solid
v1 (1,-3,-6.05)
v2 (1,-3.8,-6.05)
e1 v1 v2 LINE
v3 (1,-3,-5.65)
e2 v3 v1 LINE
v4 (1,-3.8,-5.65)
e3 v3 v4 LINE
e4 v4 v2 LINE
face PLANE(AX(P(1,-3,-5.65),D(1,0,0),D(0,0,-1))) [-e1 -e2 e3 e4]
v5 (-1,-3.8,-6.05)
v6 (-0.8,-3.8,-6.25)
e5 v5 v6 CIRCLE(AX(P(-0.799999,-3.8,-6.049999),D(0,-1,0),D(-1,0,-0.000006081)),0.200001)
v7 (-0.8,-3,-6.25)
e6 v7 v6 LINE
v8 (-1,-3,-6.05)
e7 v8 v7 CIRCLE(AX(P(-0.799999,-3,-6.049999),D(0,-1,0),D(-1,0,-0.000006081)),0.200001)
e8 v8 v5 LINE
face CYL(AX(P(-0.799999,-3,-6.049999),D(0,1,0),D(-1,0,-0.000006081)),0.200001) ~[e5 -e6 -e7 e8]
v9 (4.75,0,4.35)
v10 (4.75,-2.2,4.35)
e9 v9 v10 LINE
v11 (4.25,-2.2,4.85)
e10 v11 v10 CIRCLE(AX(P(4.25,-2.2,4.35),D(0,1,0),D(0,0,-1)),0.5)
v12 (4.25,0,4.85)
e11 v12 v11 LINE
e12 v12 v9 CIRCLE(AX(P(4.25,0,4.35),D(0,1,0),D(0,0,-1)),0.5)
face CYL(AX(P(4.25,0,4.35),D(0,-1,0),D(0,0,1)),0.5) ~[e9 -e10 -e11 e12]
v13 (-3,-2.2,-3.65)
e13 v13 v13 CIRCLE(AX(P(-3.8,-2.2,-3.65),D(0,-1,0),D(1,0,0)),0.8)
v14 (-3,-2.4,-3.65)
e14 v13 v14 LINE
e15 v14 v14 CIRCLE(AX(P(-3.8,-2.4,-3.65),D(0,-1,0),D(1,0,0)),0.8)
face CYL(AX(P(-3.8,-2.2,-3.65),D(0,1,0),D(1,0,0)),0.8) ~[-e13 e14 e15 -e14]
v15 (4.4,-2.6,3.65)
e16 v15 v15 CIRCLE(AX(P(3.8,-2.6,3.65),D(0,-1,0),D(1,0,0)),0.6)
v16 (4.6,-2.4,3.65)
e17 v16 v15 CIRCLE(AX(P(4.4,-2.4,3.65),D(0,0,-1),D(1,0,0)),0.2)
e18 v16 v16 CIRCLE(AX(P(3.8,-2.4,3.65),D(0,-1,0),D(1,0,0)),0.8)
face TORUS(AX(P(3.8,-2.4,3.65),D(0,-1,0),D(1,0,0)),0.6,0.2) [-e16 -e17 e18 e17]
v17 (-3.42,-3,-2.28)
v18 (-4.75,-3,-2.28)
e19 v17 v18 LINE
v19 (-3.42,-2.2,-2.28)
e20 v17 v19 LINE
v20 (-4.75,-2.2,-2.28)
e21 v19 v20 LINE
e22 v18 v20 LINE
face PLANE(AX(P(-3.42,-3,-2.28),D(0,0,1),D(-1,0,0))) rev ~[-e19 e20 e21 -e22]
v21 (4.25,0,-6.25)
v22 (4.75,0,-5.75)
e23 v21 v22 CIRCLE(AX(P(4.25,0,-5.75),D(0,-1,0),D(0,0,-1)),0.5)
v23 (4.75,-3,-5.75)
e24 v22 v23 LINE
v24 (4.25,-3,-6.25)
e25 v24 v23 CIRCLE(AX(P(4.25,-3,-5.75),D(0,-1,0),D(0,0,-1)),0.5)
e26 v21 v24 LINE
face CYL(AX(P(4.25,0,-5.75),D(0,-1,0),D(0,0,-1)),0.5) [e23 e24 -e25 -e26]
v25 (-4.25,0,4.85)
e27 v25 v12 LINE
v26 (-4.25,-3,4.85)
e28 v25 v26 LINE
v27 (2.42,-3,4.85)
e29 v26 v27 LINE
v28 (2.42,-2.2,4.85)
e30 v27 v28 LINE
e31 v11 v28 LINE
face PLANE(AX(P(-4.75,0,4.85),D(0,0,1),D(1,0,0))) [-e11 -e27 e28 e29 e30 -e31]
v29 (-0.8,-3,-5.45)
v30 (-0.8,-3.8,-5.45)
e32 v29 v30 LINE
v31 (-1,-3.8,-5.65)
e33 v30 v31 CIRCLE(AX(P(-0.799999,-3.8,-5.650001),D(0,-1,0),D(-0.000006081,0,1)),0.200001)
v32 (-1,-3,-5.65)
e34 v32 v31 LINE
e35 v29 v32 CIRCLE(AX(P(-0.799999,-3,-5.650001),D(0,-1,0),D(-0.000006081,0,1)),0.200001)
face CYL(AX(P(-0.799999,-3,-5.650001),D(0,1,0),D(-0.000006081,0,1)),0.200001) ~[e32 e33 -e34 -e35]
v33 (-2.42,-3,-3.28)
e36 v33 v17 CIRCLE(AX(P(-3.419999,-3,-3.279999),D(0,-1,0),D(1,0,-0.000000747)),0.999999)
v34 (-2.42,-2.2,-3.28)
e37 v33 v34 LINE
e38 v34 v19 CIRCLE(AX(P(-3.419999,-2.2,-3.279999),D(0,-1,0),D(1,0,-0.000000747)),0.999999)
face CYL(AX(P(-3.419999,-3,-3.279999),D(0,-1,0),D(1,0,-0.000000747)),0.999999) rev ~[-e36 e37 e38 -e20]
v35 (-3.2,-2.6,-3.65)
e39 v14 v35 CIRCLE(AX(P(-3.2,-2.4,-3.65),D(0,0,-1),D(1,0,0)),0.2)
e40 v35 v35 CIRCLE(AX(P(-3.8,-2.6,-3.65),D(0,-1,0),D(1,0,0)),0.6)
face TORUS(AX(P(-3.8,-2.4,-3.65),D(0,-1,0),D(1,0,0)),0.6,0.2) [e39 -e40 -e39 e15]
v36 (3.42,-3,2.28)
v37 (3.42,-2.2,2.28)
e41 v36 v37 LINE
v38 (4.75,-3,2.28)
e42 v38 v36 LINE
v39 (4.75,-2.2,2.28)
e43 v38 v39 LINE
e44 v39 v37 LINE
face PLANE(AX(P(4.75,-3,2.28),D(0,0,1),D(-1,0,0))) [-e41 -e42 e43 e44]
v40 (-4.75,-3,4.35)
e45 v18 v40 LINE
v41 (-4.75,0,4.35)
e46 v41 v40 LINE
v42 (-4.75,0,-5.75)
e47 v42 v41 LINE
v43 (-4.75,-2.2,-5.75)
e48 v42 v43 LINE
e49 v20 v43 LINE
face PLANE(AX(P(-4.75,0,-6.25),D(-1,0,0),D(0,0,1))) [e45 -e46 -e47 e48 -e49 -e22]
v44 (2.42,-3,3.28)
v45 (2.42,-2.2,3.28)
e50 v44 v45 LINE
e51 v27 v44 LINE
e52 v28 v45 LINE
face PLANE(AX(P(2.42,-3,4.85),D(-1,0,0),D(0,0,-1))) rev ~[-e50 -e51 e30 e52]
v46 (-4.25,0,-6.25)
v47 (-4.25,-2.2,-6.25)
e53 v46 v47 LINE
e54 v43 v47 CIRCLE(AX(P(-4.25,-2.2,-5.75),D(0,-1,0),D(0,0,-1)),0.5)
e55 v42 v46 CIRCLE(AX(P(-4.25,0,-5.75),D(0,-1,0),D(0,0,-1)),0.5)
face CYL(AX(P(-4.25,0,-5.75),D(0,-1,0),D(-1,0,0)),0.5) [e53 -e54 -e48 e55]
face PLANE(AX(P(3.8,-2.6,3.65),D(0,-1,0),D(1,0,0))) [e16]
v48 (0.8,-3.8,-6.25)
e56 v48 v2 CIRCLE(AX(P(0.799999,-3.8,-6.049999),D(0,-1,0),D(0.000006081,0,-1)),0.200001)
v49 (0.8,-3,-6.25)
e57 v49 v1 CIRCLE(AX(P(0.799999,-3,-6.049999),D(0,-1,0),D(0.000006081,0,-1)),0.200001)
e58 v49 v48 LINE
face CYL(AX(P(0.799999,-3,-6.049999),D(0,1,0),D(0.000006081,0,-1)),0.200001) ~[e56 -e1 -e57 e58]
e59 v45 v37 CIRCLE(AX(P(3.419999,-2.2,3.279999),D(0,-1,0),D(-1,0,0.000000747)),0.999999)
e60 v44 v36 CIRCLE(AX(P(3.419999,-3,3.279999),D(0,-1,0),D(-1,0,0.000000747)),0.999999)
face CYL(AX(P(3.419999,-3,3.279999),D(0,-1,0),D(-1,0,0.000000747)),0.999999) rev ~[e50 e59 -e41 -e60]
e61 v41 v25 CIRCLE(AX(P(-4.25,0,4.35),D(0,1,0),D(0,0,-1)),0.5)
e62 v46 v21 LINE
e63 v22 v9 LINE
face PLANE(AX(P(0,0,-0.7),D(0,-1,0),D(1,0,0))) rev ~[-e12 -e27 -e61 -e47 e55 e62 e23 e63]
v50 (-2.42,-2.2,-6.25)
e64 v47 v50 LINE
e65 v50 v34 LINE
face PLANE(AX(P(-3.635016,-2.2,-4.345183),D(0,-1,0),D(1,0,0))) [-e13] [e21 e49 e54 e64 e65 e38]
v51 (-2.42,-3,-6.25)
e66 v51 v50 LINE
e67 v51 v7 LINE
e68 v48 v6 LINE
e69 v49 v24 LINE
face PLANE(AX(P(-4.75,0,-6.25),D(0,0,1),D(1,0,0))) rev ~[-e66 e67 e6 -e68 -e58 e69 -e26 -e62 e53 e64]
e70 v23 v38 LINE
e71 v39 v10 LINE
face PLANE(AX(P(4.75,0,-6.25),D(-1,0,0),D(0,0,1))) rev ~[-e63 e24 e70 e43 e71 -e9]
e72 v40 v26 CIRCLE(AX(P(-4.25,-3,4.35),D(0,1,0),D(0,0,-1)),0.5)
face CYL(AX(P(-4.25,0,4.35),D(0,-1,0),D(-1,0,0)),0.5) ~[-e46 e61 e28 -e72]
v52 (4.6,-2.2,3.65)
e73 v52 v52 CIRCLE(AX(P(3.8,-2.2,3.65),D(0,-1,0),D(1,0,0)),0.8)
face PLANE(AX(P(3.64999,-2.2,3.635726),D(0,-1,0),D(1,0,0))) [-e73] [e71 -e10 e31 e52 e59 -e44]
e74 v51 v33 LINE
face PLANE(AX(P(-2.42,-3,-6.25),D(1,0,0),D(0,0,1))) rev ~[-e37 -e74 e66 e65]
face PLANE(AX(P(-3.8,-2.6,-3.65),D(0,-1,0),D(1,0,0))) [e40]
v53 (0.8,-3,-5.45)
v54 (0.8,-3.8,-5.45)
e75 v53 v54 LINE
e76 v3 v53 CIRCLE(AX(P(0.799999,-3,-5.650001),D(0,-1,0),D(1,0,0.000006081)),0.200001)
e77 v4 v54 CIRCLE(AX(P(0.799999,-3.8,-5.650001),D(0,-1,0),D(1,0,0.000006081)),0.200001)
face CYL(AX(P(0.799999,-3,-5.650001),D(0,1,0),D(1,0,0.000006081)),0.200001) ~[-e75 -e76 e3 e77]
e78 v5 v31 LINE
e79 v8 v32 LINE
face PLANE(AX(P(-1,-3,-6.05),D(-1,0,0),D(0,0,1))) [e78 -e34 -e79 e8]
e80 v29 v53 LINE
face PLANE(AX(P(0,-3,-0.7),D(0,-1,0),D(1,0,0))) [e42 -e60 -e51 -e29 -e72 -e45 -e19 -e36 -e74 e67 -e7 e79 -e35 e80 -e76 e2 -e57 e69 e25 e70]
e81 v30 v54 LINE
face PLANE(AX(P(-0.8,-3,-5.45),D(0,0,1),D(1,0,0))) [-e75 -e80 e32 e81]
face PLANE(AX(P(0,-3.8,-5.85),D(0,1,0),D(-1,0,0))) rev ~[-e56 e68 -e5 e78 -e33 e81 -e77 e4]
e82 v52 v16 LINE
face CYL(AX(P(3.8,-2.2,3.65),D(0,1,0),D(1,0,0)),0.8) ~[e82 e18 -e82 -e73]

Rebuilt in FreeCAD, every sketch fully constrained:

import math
import FreeCAD as App
import Part
import Sketcher
from FreeCAD import Vector


def edges_at(feature, points):
    """Names of the edges that pass closest to the given points."""
    edges = feature.Shape.Edges
    near = lambda p: min(range(len(edges)), key=lambda i: edges[i].distToShape(Part.Vertex(*p))[0])
    return sorted({f"Edge{near(p) + 1}" for p in points})


def add_polygon(sketch, points):
    """Adds a closed chain of lines whose ends are joined by coincident constraints."""
    first, n = sketch.GeometryCount, len(points)
    for a, b in zip(points, points[1:] + points[:1]):
        sketch.addGeometry(Part.LineSegment(App.Vector(*a, 0), App.Vector(*b, 0)), False)
    for i in range(n):
        sketch.addConstraint(Sketcher.Constraint("Coincident", first + i, 2, first + (i + 1) % n, 1))

doc = App.newDocument("Part")
body = doc.addObject("PartDesign::Body", "Body")

sketch1 = body.newObject("Sketcher::SketchObject", "Sketch")
sketch1.AttachmentSupport = (doc.getObject("XZ_Plane"), [""])
sketch1.MapMode = "FlatFace"
add_polygon(sketch1, [(-5, 5), (-5, -6), (5, -6), (5, 5)])
sketch1.addConstraint(Sketcher.Constraint("Vertical", 0))
sketch1.addConstraint(Sketcher.Constraint("Horizontal", 1))
sketch1.addConstraint(Sketcher.Constraint("Vertical", 2))
sketch1.addConstraint(Sketcher.Constraint("Horizontal", 3))
sketch1.addConstraint(Sketcher.Constraint("DistanceX", 1, 1, 1, 2, 9.5))
sketch1.addConstraint(Sketcher.Constraint("DistanceY", 0, 2, 0, 1, 11.1))
sketch1.addConstraint(Sketcher.Constraint("DistanceX", 0, 2, -1, 1, 4.75))
sketch1.addConstraint(Sketcher.Constraint("DistanceY", 0, 2, -1, 1, 6.25))
pad1 = body.newObject("PartDesign::Pad", "Pad")
pad1.Profile = sketch1
pad1.Length = 3

sketch2 = body.newObject("Sketcher::SketchObject", "Sketch001")
sketch2.AttachmentSupport = (doc.getObject("XZ_Plane"), [""])
sketch2.MapMode = "FlatFace"
sketch2.AttachmentOffset = App.Placement(Vector(0, 0, 3), App.Rotation())
sketch2.addGeometry(Part.LineSegment(Vector(-3.4, -2.3, 0), Vector(-4.8, -2.3, 0)), False)
sketch2.addGeometry(Part.LineSegment(Vector(-4.8, -2.3, 0), Vector(-4.8, -6.2, 0)), False)
sketch2.addGeometry(Part.LineSegment(Vector(-4.8, -6.2, 0), Vector(-2.4, -6.2, 0)), False)
sketch2.addGeometry(Part.LineSegment(Vector(-2.4, -6.2, 0), Vector(-2.4, -3.3, 0)), False)
sketch2.addGeometry(Part.ArcOfCircle(Part.Circle(Vector(-3.4, -3.3, 0), Vector(0, 0, 1), 1), math.radians(0), math.radians(90)), False)
sketch2.addGeometry(Part.LineSegment(Vector(4.8, 2.3, 0), Vector(4.8, 4.8, 0)), False)
sketch2.addGeometry(Part.LineSegment(Vector(4.8, 4.8, 0), Vector(2.4, 4.8, 0)), False)
sketch2.addGeometry(Part.LineSegment(Vector(2.4, 4.8, 0), Vector(2.4, 3.3, 0)), False)
sketch2.addGeometry(Part.ArcOfCircle(Part.Circle(Vector(3.4, 3.3, 0), Vector(0, 0, 1), 1), math.radians(180), math.radians(270)), False)
sketch2.addGeometry(Part.LineSegment(Vector(3.4, 2.3, 0), Vector(4.8, 2.3, 0)), False)
sketch2.addConstraint(Sketcher.Constraint("Coincident", 0, 2, 1, 1))
sketch2.addConstraint(Sketcher.Constraint("Coincident", 1, 2, 2, 1))
sketch2.addConstraint(Sketcher.Constraint("Coincident", 2, 2, 3, 1))
sketch2.addConstraint(Sketcher.Constraint("Tangent", 3, 2, 4, 1))
sketch2.addConstraint(Sketcher.Constraint("Tangent", 4, 2, 0, 1))
sketch2.addConstraint(Sketcher.Constraint("Coincident", 5, 2, 6, 1))
sketch2.addConstraint(Sketcher.Constraint("Coincident", 6, 2, 7, 1))
sketch2.addConstraint(Sketcher.Constraint("Tangent", 7, 2, 8, 1))
sketch2.addConstraint(Sketcher.Constraint("Tangent", 8, 2, 9, 1))
sketch2.addConstraint(Sketcher.Constraint("Coincident", 9, 2, 5, 1))
sketch2.addConstraint(Sketcher.Constraint("Horizontal", 0))
sketch2.addConstraint(Sketcher.Constraint("Vertical", 1))
sketch2.addConstraint(Sketcher.Constraint("Horizontal", 2))
sketch2.addConstraint(Sketcher.Constraint("Vertical", 3))
sketch2.addConstraint(Sketcher.Constraint("Vertical", 5))
sketch2.addConstraint(Sketcher.Constraint("Horizontal", 6))
sketch2.addConstraint(Sketcher.Constraint("Vertical", 7))
sketch2.addConstraint(Sketcher.Constraint("Horizontal", 9))
sketch2.addConstraint(Sketcher.Constraint("Equal", 4, 8))
sketch2.addConstraint(Sketcher.Constraint("Symmetric", 4, 3, 8, 3, -1, 1))
sketch2.addConstraint(Sketcher.Constraint("Equal", 2, 6))
sketch2.addConstraint(Sketcher.Constraint("Radius", 4, 0.999999))
sketch2.addConstraint(Sketcher.Constraint("DistanceX", 0, 2, 0, 1, 1.33))
sketch2.addConstraint(Sketcher.Constraint("DistanceY", 1, 2, 1, 1, 3.97))
sketch2.addConstraint(Sketcher.Constraint("DistanceY", 5, 1, 5, 2, 2.57))
sketch2.addConstraint(Sketcher.Constraint("DistanceX", 0, 2, 5, 2, 9.5))
sketch2.addConstraint(Sketcher.Constraint("DistanceY", 4, 3, -1, 1, 3.279999))
pocket1 = body.newObject("PartDesign::Pocket", "Pocket")
pocket1.Profile = sketch2
pocket1.Length = 0.8

sketch3 = body.newObject("Sketcher::SketchObject", "Sketch002")
sketch3.AttachmentSupport = (doc.getObject("XZ_Plane"), [""])
sketch3.MapMode = "FlatFace"
sketch3.AttachmentOffset = App.Placement(Vector(0, 0, 2.2), App.Rotation())
sketch3.addGeometry(Part.Circle(Vector(-3.8, -3.6, 0), Vector(0, 0, 1), 0.8), False)
sketch3.addConstraint(Sketcher.Constraint("Diameter", 0, 1.6))
sketch3.addConstraint(Sketcher.Constraint("DistanceX", 0, 3, -1, 1, 3.8))
sketch3.addConstraint(Sketcher.Constraint("DistanceY", 0, 3, -1, 1, 3.65))
pad2 = body.newObject("PartDesign::Pad", "Pad001")
pad2.Profile = sketch3
pad2.Length = 0.4

sketch4 = body.newObject("Sketcher::SketchObject", "Sketch003")
sketch4.AttachmentSupport = (doc.getObject("XZ_Plane"), [""])
sketch4.MapMode = "FlatFace"
sketch4.AttachmentOffset = App.Placement(Vector(0, 0, 2.2), App.Rotation())
sketch4.addGeometry(Part.Circle(Vector(3.8, 3.6, 0), Vector(0, 0, 1), 0.8), False)
sketch4.addConstraint(Sketcher.Constraint("Diameter", 0, 1.6))
sketch4.addConstraint(Sketcher.Constraint("DistanceX", -1, 1, 0, 3, 3.8))
sketch4.addConstraint(Sketcher.Constraint("DistanceY", -1, 1, 0, 3, 3.65))
pad3 = body.newObject("PartDesign::Pad", "Pad002")
pad3.Profile = sketch4
pad3.Length = 0.4
doc.recompute()

fillet = body.newObject("PartDesign::Fillet", "Fillet")
fillet.Base = (pad3, edges_at(pad3, [(-4.6, -2.6, -3.65), (3, -2.6, 3.65)]))
fillet.Radius = 0.2
doc.recompute()

fillet2 = body.newObject("PartDesign::Fillet", "Fillet001")
fillet2.Base = (fillet, edges_at(fillet, [
    (4.75, -1.1, 4.85),
    (-4.75, -1.5, 4.85),
    (-4.75, -1.1, -6.25),
    (4.75, -1.5, -6.25),
]))
fillet2.Radius = 0.5

sketch5 = body.newObject("Sketcher::SketchObject", "Sketch004")
sketch5.AttachmentSupport = (doc.getObject("XZ_Plane"), [""])
sketch5.MapMode = "FlatFace"
sketch5.AttachmentOffset = App.Placement(Vector(0, 0, 3), App.Rotation())
sketch5.addGeometry(Part.LineSegment(Vector(0.8, -5.45, 0), Vector(-0.8, -5.45, 0)), False)
sketch5.addGeometry(Part.ArcOfCircle(Part.Circle(Vector(-0.8, -5.65, 0), Vector(0, 0, 1), 0.2), math.radians(90), math.radians(180)), False)
sketch5.addGeometry(Part.LineSegment(Vector(-1, -5.65, 0), Vector(-1, -6.05, 0)), False)
sketch5.addGeometry(Part.ArcOfCircle(Part.Circle(Vector(-0.8, -6.05, 0), Vector(0, 0, 1), 0.2), math.radians(-180), math.radians(-90)), False)
sketch5.addGeometry(Part.LineSegment(Vector(-0.8, -6.25, 0), Vector(0.8, -6.25, 0)), False)
sketch5.addGeometry(Part.ArcOfCircle(Part.Circle(Vector(0.8, -6.05, 0), Vector(0, 0, 1), 0.2), math.radians(-90), math.radians(0)), False)
sketch5.addGeometry(Part.LineSegment(Vector(1, -6.05, 0), Vector(1, -5.65, 0)), False)
sketch5.addGeometry(Part.ArcOfCircle(Part.Circle(Vector(0.8, -5.65, 0), Vector(0, 0, 1), 0.2), math.radians(0), math.radians(90)), False)
sketch5.addConstraint(Sketcher.Constraint("Coincident", 0, 2, 1, 1))
sketch5.addConstraint(Sketcher.Constraint("Coincident", 1, 2, 2, 1))
sketch5.addConstraint(Sketcher.Constraint("Coincident", 2, 2, 3, 1))
sketch5.addConstraint(Sketcher.Constraint("Coincident", 3, 2, 4, 1))
sketch5.addConstraint(Sketcher.Constraint("Coincident", 4, 2, 5, 1))
sketch5.addConstraint(Sketcher.Constraint("Coincident", 5, 2, 6, 1))
sketch5.addConstraint(Sketcher.Constraint("Coincident", 6, 2, 7, 1))
sketch5.addConstraint(Sketcher.Constraint("Coincident", 7, 2, 0, 1))
sketch5.addConstraint(Sketcher.Constraint("Horizontal", 0))
sketch5.addConstraint(Sketcher.Constraint("Vertical", 2))
sketch5.addConstraint(Sketcher.Constraint("Horizontal", 4))
sketch5.addConstraint(Sketcher.Constraint("Vertical", 6))
sketch5.addConstraint(Sketcher.Constraint("Equal", 1, 3))
sketch5.addConstraint(Sketcher.Constraint("Equal", 3, 5))
sketch5.addConstraint(Sketcher.Constraint("Equal", 5, 7))
sketch5.addConstraint(Sketcher.Constraint("Symmetric", 2, 2, 5, 2, -2))
sketch5.addConstraint(Sketcher.Constraint("Horizontal", 7, 3, 1, 2))
sketch5.addConstraint(Sketcher.Constraint("Horizontal", 5, 3, 2, 2))
sketch5.addConstraint(Sketcher.Constraint("Horizontal", 1, 2, 6, 2))
sketch5.addConstraint(Sketcher.Constraint("Vertical", 3, 3, 0, 2))
sketch5.addConstraint(Sketcher.Constraint("Vertical", 0, 2, 3, 2))
sketch5.addConstraint(Sketcher.Constraint("Vertical", 7, 3, 4, 2))
sketch5.addConstraint(Sketcher.Constraint("Vertical", 4, 2, 7, 2))
sketch5.addConstraint(Sketcher.Constraint("Radius", 1, 0.200001))
sketch5.addConstraint(Sketcher.Constraint("DistanceX", 0, 2, 0, 1, 1.6))
sketch5.addConstraint(Sketcher.Constraint("DistanceY", 2, 2, 2, 1, 0.4))
sketch5.addConstraint(Sketcher.Constraint("DistanceY", 1, 3, -1, 1, 5.650001))
pad4 = body.newObject("PartDesign::Pad", "Pad003")
pad4.Profile = sketch5
pad4.Length = 0.8

doc.recompute()
